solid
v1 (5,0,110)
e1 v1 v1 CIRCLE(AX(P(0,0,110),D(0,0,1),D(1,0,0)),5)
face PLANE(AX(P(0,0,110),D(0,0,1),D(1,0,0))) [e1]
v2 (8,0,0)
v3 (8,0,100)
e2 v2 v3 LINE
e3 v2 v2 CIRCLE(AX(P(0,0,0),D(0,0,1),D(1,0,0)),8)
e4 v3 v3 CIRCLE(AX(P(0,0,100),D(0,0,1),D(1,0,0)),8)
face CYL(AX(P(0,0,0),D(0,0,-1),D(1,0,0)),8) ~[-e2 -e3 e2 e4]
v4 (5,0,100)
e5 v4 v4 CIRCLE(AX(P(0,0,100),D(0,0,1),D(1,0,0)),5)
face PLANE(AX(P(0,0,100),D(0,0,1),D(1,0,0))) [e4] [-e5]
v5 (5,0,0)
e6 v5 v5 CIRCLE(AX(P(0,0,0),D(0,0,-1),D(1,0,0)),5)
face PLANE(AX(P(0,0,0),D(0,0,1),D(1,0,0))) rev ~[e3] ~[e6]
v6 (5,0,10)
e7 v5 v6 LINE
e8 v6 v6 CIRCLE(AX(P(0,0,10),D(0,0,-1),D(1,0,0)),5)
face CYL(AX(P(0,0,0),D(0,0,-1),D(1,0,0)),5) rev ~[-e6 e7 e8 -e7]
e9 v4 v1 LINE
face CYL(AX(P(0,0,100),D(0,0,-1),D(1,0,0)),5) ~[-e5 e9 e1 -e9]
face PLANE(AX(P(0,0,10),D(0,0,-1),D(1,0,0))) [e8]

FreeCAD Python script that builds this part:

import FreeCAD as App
import Part
import Sketcher
Q = App.Units.Quantity

doc = App.newDocument("Part")
body = doc.addObject("PartDesign::Body", "Body")

# Sketch on XY plane
sketch1 = doc.addObject("Sketcher::SketchObject", "Sketch")
body.addObject(sketch1)
sketch1.AttachmentSupport = (doc.XY_Plane, [""])
sketch1.MapMode = "FlatFace"
sketch1.addGeometry(Part.Circle(App.Vector(0, 0, 0), App.Vector(0, 0, 1), 8), False)
sketch1.addConstraint(Sketcher.Constraint("Coincident", 0, 3, -1, 1))
sketch1.addConstraint(Sketcher.Constraint("Diameter", 0, Q("16 mm")))
pad1 = doc.addObject("PartDesign::Pad", "Pad")
body.addObject(pad1)
pad1.Profile = sketch1
pad1.Length = 100

# Sketch on XY plane
sketch2 = doc.addObject("Sketcher::SketchObject", "Sketch001")
body.addObject(sketch2)
sketch2.AttachmentSupport = (doc.XY_Plane, [""])
sketch2.MapMode = "FlatFace"
sketch2.AttachmentOffset = App.Placement(App.Vector(0, 0, 100), App.Rotation())
sketch2.addGeometry(Part.Circle(App.Vector(0, 0, 0), App.Vector(0, 0, 1), 5), False)
sketch2.addConstraint(Sketcher.Constraint("Coincident", 0, 3, -1, 1))
sketch2.addConstraint(Sketcher.Constraint("Diameter", 0, Q("10 mm")))
pad2 = doc.addObject("PartDesign::Pad", "Pad001")
body.addObject(pad2)
pad2.Profile = sketch2
pad2.Length = 10

# Sketch on XY plane
sketch3 = doc.addObject("Sketcher::SketchObject", "Sketch002")
body.addObject(sketch3)
sketch3.AttachmentSupport = (doc.XY_Plane, [""])
sketch3.MapMode = "FlatFace"
sketch3.addGeometry(Part.Circle(App.Vector(0, 0, 0), App.Vector(0, 0, 1), 5), False)
sketch3.addConstraint(Sketcher.Constraint("Coincident", 0, 3, -1, 1))
sketch3.addConstraint(Sketcher.Constraint("Diameter", 0, Q("10 mm")))
pocket1 = doc.addObject("PartDesign::Pocket", "Pocket")
body.addObject(pocket1)
pocket1.Profile = sketch3
pocket1.Length = 10
pocket1.Reversed = True

doc.recompute()
